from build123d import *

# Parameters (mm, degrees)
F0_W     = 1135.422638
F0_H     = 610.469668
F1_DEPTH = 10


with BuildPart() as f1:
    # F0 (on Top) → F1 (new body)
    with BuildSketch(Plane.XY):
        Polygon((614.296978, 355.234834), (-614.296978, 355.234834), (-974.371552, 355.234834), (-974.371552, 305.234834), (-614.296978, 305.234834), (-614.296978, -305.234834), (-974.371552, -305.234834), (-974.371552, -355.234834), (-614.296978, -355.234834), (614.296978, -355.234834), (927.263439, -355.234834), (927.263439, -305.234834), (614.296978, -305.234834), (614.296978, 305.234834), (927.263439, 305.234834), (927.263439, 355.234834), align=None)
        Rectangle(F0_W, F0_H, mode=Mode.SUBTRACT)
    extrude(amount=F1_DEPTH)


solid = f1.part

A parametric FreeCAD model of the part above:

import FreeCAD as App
import Part
import Sketcher
from FreeCAD import Vector


def add_polygon(sketch, points):
    """Adds a closed chain of lines whose ends are joined by coincident constraints."""
    first, n = sketch.GeometryCount, len(points)
    for a, b in zip(points, points[1:] + points[:1]):
        sketch.addGeometry(Part.LineSegment(App.Vector(*a, 0), App.Vector(*b, 0)), False)
    for i in range(n):
        sketch.addConstraint(Sketcher.Constraint("Coincident", first + i, 2, first + (i + 1) % n, 1))

doc = App.newDocument("Part")
body = doc.addObject("PartDesign::Body", "Body")

# Sketch on XY plane
sketch1 = doc.addObject("Sketcher::SketchObject", "Sketch")
body.addObject(sketch1)
sketch1.AttachmentSupport = (doc.XY_Plane, [""])
sketch1.MapMode = "FlatFace"
add_polygon(sketch1, [(-974.371552, 355.234834), (-974.371552, 305.234834), (-614.296978, 305.234834), (-614.296978, -305.234834), (-974.371552, -305.234834), (-974.371552, -355.234834), (927.263439, -355.234834), (927.263439, -305.234834), (614.296978, -305.234834), (614.296978, 305.234834), (927.263439, 305.234834), (927.263439, 355.234834)])  # lines 0-11
add_polygon(sketch1, [(567.711319, -305.234834), (-567.711319, -305.234834), (-567.711319, 305.234834), (567.711319, 305.234834)])  # lines 12-15
sketch1.addConstraint([
    Sketcher.Constraint("Vertical", 0),
    Sketcher.Constraint("Horizontal", 1),
    Sketcher.Constraint("Vertical", 2),
    Sketcher.Constraint("Horizontal", 3),
    Sketcher.Constraint("Vertical", 4),
    Sketcher.Constraint("Horizontal", 5),
    Sketcher.Constraint("Vertical", 6),
    Sketcher.Constraint("Horizontal", 7),
    Sketcher.Constraint("Vertical", 8),
    Sketcher.Constraint("Horizontal", 9),
    Sketcher.Constraint("Vertical", 10),
    Sketcher.Constraint("Horizontal", 11),
    Sketcher.Constraint("Horizontal", 12),
    Sketcher.Constraint("Vertical", 13),
    Sketcher.Constraint("Horizontal", 14),
    Sketcher.Constraint("Vertical", 15),
    Sketcher.Constraint("Symmetric", 1, 2, 7, 2, -1, 1),
    Sketcher.Constraint("Symmetric", 12, 2, 14, 2, -1, 1),
    Sketcher.Constraint("Symmetric", 0, 2, 3, 2, -1),
    Sketcher.Constraint("Symmetric", 6, 2, 9, 2, -1),
    Sketcher.Constraint("Horizontal", 7, 2, 12, 2),
    Sketcher.Constraint("Equal", 0, 4),
    Sketcher.Constraint("DistanceY", 0, 2, 0, 1, 50.0),
    Sketcher.Constraint("DistanceX", 5, 1, 5, 2, 1901.634991),
    Sketcher.Constraint("DistanceX", 7, 2, 7, 1, 312.966461),
    Sketcher.Constraint("DistanceX", 12, 2, 12, 1, 1135.422638),
    Sketcher.Constraint("DistanceY", 2, 2, 2, 1, 610.469668),
    Sketcher.Constraint("DistanceX", 1, 1, 1, 2, 360.074574),
])
pad1 = doc.addObject("PartDesign::Pad", "Pad")
body.addObject(pad1)
pad1.Profile = sketch1
pad1.Length = 10

doc.recompute()
